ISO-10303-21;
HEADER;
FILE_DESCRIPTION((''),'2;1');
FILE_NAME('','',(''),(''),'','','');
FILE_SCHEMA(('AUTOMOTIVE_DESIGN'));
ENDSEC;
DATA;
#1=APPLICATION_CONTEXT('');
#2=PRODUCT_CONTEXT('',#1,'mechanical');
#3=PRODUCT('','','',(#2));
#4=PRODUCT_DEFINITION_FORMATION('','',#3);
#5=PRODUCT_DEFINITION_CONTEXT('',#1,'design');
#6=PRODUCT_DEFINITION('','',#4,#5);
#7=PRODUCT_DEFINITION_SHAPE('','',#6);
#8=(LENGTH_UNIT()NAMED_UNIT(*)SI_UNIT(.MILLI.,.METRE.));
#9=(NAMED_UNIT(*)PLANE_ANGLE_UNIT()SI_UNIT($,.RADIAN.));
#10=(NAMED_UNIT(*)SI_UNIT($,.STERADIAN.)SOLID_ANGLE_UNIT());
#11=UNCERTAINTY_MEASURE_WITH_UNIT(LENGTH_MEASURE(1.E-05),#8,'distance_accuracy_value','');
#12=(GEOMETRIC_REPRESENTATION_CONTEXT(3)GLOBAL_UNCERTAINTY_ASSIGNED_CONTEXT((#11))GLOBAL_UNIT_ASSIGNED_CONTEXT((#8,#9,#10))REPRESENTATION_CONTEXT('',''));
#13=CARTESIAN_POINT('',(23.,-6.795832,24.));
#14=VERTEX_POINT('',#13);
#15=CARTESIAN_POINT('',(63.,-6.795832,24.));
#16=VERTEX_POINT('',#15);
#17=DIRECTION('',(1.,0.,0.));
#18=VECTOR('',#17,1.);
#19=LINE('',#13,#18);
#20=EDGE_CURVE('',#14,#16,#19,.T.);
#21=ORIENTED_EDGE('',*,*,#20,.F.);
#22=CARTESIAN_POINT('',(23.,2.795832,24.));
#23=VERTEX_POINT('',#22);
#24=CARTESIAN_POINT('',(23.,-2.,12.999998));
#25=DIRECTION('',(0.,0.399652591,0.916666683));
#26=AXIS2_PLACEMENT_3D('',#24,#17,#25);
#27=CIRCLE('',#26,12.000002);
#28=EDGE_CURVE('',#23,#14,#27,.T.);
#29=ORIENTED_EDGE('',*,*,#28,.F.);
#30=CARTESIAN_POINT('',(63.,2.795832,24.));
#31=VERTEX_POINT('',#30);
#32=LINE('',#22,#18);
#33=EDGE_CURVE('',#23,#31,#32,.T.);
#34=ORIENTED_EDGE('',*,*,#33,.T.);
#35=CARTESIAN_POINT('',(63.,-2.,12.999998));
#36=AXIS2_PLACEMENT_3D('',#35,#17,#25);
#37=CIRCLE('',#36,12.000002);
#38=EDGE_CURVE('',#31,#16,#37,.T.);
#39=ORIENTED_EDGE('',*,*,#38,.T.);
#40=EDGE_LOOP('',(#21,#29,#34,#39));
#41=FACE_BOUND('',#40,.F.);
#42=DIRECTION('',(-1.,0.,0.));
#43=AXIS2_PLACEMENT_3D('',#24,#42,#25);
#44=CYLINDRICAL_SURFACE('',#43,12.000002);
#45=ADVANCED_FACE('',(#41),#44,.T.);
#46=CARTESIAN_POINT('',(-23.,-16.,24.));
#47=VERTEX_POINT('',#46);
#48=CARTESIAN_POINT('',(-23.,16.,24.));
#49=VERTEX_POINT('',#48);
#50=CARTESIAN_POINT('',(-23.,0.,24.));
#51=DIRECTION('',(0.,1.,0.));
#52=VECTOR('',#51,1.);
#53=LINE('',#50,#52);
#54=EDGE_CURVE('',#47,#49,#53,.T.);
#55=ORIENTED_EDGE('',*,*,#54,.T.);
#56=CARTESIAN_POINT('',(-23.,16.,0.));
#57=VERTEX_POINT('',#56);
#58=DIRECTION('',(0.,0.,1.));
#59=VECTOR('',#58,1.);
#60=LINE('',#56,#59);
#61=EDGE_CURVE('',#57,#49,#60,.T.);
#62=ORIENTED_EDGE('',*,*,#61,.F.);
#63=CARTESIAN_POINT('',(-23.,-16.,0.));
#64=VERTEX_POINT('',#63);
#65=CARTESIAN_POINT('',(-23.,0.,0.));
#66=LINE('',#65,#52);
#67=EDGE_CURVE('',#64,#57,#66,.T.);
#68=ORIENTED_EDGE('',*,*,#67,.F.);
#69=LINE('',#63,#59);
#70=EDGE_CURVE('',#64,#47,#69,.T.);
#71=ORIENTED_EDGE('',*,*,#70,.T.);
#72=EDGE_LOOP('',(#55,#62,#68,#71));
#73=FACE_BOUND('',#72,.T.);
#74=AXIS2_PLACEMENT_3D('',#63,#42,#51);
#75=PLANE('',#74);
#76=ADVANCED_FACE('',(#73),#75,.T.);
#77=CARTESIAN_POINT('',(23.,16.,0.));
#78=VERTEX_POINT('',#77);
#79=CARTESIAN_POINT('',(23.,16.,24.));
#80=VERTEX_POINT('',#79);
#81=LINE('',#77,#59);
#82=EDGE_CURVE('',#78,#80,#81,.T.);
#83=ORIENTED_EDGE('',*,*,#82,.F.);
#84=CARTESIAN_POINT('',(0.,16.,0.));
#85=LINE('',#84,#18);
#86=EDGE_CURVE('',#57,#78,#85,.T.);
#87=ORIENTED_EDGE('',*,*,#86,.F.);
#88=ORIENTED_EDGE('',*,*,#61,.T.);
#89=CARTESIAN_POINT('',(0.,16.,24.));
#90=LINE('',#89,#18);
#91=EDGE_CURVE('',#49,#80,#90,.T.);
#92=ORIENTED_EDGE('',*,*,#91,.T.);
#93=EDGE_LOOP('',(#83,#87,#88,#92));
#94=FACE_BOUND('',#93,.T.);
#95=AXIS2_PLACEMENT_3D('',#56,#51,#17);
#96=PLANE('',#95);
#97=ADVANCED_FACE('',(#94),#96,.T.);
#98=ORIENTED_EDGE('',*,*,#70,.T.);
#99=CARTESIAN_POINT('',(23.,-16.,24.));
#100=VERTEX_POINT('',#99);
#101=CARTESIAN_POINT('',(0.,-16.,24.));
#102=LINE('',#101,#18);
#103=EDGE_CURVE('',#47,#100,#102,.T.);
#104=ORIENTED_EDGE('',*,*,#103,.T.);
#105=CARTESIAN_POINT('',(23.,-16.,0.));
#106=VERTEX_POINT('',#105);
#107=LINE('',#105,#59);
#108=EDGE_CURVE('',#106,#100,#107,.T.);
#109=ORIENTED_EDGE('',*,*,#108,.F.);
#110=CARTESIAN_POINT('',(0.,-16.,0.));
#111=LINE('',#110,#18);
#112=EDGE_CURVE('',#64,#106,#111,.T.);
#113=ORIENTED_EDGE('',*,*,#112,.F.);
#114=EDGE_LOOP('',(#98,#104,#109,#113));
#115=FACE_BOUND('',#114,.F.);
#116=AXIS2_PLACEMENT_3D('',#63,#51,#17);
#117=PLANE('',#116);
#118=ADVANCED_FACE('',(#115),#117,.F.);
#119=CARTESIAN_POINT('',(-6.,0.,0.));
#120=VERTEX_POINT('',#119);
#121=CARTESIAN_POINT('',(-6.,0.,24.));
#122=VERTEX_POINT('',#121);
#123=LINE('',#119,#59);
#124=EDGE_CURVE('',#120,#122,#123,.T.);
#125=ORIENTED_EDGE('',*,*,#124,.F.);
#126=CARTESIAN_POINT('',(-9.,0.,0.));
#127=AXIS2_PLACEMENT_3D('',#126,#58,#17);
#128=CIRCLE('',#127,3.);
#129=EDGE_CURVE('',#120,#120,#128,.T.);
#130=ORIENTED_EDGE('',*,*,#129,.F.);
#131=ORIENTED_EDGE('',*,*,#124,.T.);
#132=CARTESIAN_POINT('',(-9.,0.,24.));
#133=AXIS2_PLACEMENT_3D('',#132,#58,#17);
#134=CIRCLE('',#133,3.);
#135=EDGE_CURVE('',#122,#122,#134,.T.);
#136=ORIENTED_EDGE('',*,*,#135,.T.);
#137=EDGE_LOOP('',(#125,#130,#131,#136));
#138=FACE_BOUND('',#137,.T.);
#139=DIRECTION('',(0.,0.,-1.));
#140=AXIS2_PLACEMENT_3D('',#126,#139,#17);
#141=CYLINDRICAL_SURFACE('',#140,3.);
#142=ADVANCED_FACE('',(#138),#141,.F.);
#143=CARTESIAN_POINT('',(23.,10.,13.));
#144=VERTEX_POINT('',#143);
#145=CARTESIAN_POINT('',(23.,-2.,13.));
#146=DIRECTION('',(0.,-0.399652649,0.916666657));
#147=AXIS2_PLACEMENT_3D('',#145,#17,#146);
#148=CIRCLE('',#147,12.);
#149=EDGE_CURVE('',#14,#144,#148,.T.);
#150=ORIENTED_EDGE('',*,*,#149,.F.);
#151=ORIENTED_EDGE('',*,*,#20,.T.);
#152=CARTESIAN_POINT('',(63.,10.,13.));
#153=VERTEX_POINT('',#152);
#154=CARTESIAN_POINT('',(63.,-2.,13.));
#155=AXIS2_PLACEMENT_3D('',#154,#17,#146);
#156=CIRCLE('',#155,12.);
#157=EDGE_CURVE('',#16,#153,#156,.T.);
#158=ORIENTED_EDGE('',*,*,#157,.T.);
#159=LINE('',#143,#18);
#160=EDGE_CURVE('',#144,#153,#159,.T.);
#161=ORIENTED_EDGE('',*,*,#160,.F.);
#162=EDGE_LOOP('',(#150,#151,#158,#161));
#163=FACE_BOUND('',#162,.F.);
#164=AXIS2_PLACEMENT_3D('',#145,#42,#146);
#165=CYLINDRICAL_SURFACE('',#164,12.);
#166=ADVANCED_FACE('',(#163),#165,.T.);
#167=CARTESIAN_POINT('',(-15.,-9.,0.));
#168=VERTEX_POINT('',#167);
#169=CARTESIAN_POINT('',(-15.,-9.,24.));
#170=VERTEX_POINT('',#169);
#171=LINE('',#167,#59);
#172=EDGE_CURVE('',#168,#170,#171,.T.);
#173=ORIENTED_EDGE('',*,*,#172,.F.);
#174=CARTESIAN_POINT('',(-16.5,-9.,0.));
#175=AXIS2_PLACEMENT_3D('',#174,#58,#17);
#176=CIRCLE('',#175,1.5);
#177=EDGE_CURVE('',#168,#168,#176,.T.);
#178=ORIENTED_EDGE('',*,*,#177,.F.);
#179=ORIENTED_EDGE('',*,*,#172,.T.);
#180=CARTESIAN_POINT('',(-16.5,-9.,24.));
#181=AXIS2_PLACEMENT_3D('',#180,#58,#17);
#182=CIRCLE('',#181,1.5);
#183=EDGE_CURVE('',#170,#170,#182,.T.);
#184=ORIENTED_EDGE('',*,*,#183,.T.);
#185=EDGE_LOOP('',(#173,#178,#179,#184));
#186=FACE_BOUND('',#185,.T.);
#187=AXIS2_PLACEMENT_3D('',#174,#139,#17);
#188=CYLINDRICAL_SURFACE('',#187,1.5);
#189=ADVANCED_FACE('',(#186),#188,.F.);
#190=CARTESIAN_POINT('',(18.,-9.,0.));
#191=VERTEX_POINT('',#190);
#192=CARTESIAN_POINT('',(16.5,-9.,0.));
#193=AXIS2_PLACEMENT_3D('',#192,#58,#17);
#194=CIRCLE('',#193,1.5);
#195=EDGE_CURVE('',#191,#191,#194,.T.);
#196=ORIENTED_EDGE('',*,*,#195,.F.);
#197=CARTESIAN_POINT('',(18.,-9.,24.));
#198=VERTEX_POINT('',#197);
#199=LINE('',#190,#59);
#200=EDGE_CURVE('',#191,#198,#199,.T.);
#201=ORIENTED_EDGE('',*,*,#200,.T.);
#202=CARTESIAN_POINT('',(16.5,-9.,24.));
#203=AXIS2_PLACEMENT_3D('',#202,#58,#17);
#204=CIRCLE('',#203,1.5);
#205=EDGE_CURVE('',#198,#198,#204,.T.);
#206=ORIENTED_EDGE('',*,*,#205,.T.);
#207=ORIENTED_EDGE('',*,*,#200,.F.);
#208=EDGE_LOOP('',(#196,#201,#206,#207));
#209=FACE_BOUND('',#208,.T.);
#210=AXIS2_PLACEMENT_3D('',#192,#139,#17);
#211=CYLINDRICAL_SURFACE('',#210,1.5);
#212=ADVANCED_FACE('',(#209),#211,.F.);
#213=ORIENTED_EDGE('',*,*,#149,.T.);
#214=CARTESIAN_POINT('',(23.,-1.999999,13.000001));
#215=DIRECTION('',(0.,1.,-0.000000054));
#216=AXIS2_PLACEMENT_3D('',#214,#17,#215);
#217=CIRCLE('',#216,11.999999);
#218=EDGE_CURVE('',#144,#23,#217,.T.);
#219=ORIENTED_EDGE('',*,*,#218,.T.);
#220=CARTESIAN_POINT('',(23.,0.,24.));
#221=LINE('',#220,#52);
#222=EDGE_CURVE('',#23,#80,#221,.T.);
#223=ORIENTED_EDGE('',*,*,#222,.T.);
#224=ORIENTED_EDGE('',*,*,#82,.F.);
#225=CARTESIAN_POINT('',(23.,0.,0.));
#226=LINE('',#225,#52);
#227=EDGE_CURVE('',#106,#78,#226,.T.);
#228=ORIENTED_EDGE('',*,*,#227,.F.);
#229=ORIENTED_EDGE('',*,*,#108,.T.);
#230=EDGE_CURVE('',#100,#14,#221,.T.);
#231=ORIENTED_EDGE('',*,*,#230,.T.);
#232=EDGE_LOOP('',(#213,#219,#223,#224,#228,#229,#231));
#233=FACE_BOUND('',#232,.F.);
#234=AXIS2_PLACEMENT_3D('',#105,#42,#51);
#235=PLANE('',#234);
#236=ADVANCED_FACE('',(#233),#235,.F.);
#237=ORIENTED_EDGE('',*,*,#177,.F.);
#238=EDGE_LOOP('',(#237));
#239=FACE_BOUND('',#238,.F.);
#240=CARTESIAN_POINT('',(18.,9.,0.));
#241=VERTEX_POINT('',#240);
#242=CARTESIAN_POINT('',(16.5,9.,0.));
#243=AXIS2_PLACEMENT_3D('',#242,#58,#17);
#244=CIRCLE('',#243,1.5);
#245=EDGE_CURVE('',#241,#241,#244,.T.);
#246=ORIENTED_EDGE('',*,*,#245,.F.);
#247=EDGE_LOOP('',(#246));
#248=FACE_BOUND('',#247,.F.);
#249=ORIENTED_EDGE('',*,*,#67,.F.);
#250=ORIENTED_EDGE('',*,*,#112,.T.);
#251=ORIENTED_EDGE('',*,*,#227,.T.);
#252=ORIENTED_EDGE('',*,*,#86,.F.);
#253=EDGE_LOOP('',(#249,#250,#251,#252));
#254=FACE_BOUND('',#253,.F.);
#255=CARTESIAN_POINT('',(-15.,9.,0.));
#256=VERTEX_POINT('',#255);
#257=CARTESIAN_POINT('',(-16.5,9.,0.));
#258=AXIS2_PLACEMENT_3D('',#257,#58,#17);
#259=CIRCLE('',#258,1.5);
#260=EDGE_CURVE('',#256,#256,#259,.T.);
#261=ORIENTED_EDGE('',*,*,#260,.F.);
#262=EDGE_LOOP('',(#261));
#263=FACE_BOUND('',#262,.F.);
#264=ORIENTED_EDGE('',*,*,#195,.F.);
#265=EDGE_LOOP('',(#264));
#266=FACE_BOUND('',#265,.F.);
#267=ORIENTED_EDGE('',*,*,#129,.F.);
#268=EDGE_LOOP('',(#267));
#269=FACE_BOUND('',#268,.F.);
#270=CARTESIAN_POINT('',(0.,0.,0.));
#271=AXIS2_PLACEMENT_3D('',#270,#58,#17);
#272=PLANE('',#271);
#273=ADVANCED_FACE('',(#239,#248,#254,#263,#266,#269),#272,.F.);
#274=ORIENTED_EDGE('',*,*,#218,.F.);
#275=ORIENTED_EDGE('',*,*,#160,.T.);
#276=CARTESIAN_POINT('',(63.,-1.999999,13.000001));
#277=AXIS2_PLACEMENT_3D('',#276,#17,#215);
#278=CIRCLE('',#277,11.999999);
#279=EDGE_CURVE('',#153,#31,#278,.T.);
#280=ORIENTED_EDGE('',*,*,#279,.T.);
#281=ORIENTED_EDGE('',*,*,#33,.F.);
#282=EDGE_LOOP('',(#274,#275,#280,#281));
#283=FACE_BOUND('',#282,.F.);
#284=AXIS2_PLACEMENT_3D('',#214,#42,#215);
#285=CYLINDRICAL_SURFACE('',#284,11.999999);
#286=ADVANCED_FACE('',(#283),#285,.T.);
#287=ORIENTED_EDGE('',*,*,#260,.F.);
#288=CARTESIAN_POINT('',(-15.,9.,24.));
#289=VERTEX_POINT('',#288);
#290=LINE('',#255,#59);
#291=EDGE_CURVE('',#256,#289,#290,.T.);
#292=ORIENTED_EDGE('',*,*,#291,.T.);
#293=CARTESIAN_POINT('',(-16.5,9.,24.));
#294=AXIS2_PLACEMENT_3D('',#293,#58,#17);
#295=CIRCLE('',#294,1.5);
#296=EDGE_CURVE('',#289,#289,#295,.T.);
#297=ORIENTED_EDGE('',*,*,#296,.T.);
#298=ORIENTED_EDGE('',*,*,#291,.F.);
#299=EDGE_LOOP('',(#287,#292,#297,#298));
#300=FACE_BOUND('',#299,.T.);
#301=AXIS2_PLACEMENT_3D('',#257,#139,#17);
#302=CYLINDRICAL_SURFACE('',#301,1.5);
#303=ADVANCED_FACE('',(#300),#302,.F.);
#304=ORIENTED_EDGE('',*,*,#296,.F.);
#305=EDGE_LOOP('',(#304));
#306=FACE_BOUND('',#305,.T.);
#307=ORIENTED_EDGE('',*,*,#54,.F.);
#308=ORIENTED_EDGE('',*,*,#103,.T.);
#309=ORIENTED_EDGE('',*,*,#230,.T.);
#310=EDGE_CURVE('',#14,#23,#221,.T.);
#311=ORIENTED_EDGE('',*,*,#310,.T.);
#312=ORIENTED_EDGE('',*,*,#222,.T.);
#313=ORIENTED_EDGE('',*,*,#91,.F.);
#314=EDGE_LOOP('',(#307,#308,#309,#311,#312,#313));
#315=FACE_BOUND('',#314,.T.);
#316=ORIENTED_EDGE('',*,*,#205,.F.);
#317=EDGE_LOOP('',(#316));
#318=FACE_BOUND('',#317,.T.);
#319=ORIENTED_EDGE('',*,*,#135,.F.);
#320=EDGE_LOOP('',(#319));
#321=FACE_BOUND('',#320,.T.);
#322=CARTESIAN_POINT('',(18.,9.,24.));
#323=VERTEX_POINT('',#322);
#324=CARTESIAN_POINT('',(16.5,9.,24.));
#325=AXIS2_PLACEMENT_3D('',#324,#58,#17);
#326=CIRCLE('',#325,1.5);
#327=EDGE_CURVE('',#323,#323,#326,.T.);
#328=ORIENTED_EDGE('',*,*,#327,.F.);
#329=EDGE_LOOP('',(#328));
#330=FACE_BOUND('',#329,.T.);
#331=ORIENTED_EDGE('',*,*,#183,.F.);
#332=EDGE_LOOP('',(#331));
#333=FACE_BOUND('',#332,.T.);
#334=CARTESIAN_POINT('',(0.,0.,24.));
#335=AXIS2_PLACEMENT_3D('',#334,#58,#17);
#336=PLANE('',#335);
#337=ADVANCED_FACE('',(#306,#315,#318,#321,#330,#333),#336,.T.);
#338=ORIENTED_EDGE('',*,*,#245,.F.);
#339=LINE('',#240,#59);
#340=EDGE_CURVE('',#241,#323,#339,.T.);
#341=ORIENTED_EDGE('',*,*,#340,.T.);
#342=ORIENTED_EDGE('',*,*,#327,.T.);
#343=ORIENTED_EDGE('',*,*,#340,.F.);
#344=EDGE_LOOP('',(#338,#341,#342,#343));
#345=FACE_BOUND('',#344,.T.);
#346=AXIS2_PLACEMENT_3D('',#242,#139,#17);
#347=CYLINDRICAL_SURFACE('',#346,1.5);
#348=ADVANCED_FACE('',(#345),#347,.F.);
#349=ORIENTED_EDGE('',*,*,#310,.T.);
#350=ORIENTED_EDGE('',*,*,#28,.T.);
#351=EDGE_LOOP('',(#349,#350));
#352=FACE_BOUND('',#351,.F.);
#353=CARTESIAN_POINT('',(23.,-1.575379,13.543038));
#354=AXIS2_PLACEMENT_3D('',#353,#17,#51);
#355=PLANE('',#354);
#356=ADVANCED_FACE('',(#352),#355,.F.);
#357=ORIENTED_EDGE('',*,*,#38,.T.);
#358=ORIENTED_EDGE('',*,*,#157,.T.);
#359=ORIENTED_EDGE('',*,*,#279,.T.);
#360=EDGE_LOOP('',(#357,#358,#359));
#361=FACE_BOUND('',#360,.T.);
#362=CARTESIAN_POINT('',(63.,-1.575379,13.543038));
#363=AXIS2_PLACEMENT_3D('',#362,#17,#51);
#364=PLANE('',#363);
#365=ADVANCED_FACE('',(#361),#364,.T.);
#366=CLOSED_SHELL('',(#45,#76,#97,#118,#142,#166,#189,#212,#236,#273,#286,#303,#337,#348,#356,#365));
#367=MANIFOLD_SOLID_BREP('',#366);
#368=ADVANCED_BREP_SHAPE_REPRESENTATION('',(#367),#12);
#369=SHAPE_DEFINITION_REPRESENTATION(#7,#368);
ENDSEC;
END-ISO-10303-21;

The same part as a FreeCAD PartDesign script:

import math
import FreeCAD as App
import Part
import Sketcher

V = App.Vector
Q = App.Units.Quantity


def add_polygon(sketch, points):
    """Adds a closed chain of lines whose ends are joined by coincident constraints."""
    first, n = sketch.GeometryCount, len(points)
    for a, b in zip(points, points[1:] + points[:1]):
        sketch.addGeometry(Part.LineSegment(App.Vector(*a, 0), App.Vector(*b, 0)), False)
    for i in range(n):
        sketch.addConstraint(Sketcher.Constraint("Coincident", first + i, 2, first + (i + 1) % n, 1))

doc = App.newDocument("Part")
body = doc.addObject("PartDesign::Body", "Body")

sketch1 = doc.addObject("Sketcher::SketchObject", "Sketch")
body.addObject(sketch1)
sketch1.AttachmentSupport = (doc.XY_Plane, [""])
sketch1.MapMode = "FlatFace"
add_polygon(sketch1, [(-23, 16), (-23, -16), (23, -16), (23, 16)])
sketch1.addGeometry(Part.Circle(V(-16.5, -9, 0), V(0, 0, 1), 1.5), False)
sketch1.addGeometry(Part.Circle(V(16.5, -9, 0), V(0, 0, 1), 1.5), False)
sketch1.addGeometry(Part.Circle(V(-9, 0, 0), V(0, 0, 1), 3), False)
sketch1.addGeometry(Part.Circle(V(-16.5, 9, 0), V(0, 0, 1), 1.5), False)
sketch1.addGeometry(Part.Circle(V(16.5, 9, 0), V(0, 0, 1), 1.5), False)
sketch1.addConstraint(Sketcher.Constraint("Vertical", 0))
sketch1.addConstraint(Sketcher.Constraint("Horizontal", 1))
sketch1.addConstraint(Sketcher.Constraint("Vertical", 2))
sketch1.addConstraint(Sketcher.Constraint("Horizontal", 3))
sketch1.addConstraint(Sketcher.Constraint("Equal", 4, 5))
sketch1.addConstraint(Sketcher.Constraint("Equal", 5, 7))
sketch1.addConstraint(Sketcher.Constraint("Equal", 7, 8))
sketch1.addConstraint(Sketcher.Constraint("Symmetric", 5, 3, 7, 3, -1, 1))
sketch1.addConstraint(Sketcher.Constraint("Symmetric", 4, 3, 8, 3, -1, 1))
sketch1.addConstraint(Sketcher.Constraint("Symmetric", 0, 2, 2, 2, -1, 1))
sketch1.addConstraint(Sketcher.Constraint("Symmetric", 4, 3, 5, 3, -2))
sketch1.addConstraint(Sketcher.Constraint("PointOnObject", 6, 3, -1))
sketch1.addConstraint(Sketcher.Constraint("Diameter", 4, Q("3 mm")))
sketch1.addConstraint(Sketcher.Constraint("Diameter", 6, Q("6 mm")))
sketch1.addConstraint(Sketcher.Constraint("DistanceX", 1, 1, 1, 2, Q("46 mm")))
sketch1.addConstraint(Sketcher.Constraint("DistanceY", 0, 2, 0, 1, Q("32 mm")))
sketch1.addConstraint(Sketcher.Constraint("DistanceY", 4, 3, -1, 1, Q("9 mm")))
sketch1.addConstraint(Sketcher.Constraint("DistanceX", 6, 3, -1, 1, Q("9 mm")))
sketch1.addConstraint(Sketcher.Constraint("DistanceX", 4, 3, 5, 3, Q("33 mm")))
pad1 = doc.addObject("PartDesign::Pad", "Pad")
body.addObject(pad1)
pad1.Profile = sketch1
pad1.Length = 24

sketch2 = doc.addObject("Sketcher::SketchObject", "Sketch001")
body.addObject(sketch2)
sketch2.AttachmentSupport = (doc.YZ_Plane, [""])
sketch2.MapMode = "FlatFace"
sketch2.AttachmentOffset = App.Placement(V(0, 0, 23), App.Rotation())
sketch2.addGeometry(Part.ArcOfCircle(Part.Circle(V(-2, 13, 0), V(0, 0, 1), 12), math.radians(114), math.radians(360)), False)
sketch2.addGeometry(Part.ArcOfCircle(Part.Circle(V(-2, 13, 0), V(0, 0, 1), 12), math.radians(0), math.radians(66)), False)
sketch2.addGeometry(Part.ArcOfCircle(Part.Circle(V(-2, 13, 0), V(0, 0, 1), 12), math.radians(66), math.radians(114)), False)
sketch2.addConstraint(Sketcher.Constraint("Tangent", 0, 2, 1, 1))
sketch2.addConstraint(Sketcher.Constraint("Tangent", 1, 2, 2, 1))
sketch2.addConstraint(Sketcher.Constraint("Tangent", 2, 2, 0, 1))
sketch2.addConstraint(Sketcher.Constraint("Horizontal", 1, 3, 0, 2))
sketch2.addConstraint(Sketcher.Constraint("Horizontal", 1, 2, 2, 2))
sketch2.addConstraint(Sketcher.Constraint("Radius", 0, Q("12 mm")))
sketch2.addConstraint(Sketcher.Constraint("DistanceX", 0, 3, -1, 1, Q("2 mm")))
sketch2.addConstraint(Sketcher.Constraint("DistanceY", -1, 1, 0, 3, Q("13 mm")))
sketch2.addConstraint(Sketcher.Constraint("DistanceY", -1, 1, 1, 2, Q("24 mm")))
pad2 = doc.addObject("PartDesign::Pad", "Pad001")
body.addObject(pad2)
pad2.Profile = sketch2
pad2.Length = 40

doc.recompute()
